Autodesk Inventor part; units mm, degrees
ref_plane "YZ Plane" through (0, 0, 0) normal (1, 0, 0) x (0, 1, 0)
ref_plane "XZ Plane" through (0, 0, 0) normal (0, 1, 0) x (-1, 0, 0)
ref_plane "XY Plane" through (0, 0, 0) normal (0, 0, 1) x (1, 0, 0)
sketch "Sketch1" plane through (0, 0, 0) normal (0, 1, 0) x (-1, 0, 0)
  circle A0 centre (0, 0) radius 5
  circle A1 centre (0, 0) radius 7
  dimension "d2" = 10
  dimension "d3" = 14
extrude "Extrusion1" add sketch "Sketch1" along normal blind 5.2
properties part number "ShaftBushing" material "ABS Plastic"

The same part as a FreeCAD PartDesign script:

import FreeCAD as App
import Part
import Sketcher
from FreeCAD import Vector

doc = App.newDocument("Part")
params = doc.addObject("Spreadsheet::Sheet", "Params")
for row, (alias, value) in enumerate([
    ("sketch1_diameter", "14 mm"),
    ("sketch1_diameter2", "10 mm"),
    ("pad1_length", "5.2 mm"),
], start=1):
    params.set(f"A{row}", alias)
    params.set(f"B{row}", "=" + value)
    params.setAlias(f"B{row}", alias)

body = doc.addObject("PartDesign::Body", "Body")

sketch1 = body.newObject("Sketcher::SketchObject", "Sketch")
sketch1.AttachmentSupport = (doc.getObject("XZ_Plane"), [""])
sketch1.MapMode = "FlatFace"
sketch1.addGeometry(Part.Circle(Vector(0, 0, 0), Vector(0, 0, 1), 7), False)
sketch1.addGeometry(Part.Circle(Vector(0, 0, 0), Vector(0, 0, 1), 5), False)
sketch1.addConstraint(Sketcher.Constraint("Coincident", 0, 3, -1, 1))
sketch1.addConstraint(Sketcher.Constraint("Coincident", 1, 3, -1, 1))
sketch1.addConstraint(Sketcher.Constraint("Diameter", 0, 14.0))
sketch1.addConstraint(Sketcher.Constraint("Diameter", 1, 10.0))
sketch1.setExpression("Constraints[2]", "Params.sketch1_diameter")
sketch1.setExpression("Constraints[3]", "Params.sketch1_diameter2")
pad1 = body.newObject("PartDesign::Pad", "Pad")
pad1.Profile = sketch1
pad1.setExpression("Length", "Params.pad1_length")
pad1.Reversed = True

doc.recompute()
